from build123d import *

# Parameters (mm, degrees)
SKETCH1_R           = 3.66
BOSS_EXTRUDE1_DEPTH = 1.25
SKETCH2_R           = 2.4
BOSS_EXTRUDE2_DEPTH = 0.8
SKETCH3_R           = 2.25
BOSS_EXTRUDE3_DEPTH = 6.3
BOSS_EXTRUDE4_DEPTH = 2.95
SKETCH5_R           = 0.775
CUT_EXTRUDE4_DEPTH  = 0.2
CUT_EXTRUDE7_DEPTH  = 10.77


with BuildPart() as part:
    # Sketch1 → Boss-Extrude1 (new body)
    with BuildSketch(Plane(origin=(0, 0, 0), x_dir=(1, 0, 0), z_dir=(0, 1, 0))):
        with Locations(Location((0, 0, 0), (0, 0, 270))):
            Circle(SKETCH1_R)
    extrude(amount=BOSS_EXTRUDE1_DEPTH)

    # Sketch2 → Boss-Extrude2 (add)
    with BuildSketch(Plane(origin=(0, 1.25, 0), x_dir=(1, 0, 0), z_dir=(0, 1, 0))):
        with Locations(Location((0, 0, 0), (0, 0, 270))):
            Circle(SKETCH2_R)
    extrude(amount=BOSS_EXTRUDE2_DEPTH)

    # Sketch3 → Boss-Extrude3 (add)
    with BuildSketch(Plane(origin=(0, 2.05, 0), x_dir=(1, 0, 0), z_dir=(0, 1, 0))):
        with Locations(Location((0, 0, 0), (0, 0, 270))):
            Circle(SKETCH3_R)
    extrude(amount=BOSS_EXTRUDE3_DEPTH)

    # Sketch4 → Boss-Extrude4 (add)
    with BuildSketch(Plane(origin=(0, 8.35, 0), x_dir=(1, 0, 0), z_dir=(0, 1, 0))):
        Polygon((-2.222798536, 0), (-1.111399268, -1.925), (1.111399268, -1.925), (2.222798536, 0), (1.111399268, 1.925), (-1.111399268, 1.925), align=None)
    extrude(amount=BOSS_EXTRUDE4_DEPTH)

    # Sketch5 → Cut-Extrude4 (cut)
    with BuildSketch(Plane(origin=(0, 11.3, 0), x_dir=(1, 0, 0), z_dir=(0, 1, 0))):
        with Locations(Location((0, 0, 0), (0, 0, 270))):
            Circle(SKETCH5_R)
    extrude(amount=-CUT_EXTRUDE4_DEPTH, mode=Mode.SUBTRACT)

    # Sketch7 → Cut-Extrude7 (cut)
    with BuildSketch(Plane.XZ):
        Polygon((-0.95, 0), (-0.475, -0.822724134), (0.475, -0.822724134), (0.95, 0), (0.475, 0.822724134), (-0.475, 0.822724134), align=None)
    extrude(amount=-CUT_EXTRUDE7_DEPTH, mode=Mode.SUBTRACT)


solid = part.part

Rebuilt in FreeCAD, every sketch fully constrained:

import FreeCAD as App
import Part
import Sketcher
Q = App.Units.Quantity

doc = App.newDocument("Part")
body = doc.addObject("PartDesign::Body", "Body")

# Sketch on XZ plane
sketch1 = body.newObject("Sketcher::SketchObject", "Sketch")
sketch1.AttachmentSupport = (doc.getObject("XZ_Plane"), [""])
sketch1.MapMode = "FlatFace"
sketch1.addGeometry(Part.Circle(App.Vector(0, 0, 0), App.Vector(0, 0, 1), 3.7), False)
sketch1.addConstraint(Sketcher.Constraint("Coincident", 0, 3, -1, 1))
sketch1.addConstraint(Sketcher.Constraint("Diameter", 0, Q("7.32 mm")))
pad1 = body.newObject("PartDesign::Pad", "Pad")
pad1.Profile = sketch1
pad1.Length = 1.25
pad1.Reversed = True

# Sketch on XZ plane
sketch2 = body.newObject("Sketcher::SketchObject", "Sketch001")
sketch2.AttachmentSupport = (doc.getObject("XZ_Plane"), [""])
sketch2.MapMode = "FlatFace"
sketch2.AttachmentOffset = App.Placement(App.Vector(0, 0, -1.25), App.Rotation())
sketch2.addGeometry(Part.Circle(App.Vector(0, 0, 0), App.Vector(0, 0, 1), 2.4), False)
sketch2.addConstraint(Sketcher.Constraint("Coincident", 0, 3, -1, 1))
sketch2.addConstraint(Sketcher.Constraint("Diameter", 0, Q("4.8 mm")))
pad2 = body.newObject("PartDesign::Pad", "Pad001")
pad2.Profile = sketch2
pad2.Length = 0.8
pad2.Reversed = True

# Sketch on XZ plane
sketch3 = body.newObject("Sketcher::SketchObject", "Sketch002")
sketch3.AttachmentSupport = (doc.getObject("XZ_Plane"), [""])
sketch3.MapMode = "FlatFace"
sketch3.AttachmentOffset = App.Placement(App.Vector(0, 0, -2.05), App.Rotation())
sketch3.addGeometry(Part.Circle(App.Vector(0, 0, 0), App.Vector(0, 0, 1), 2.2), False)
sketch3.addConstraint(Sketcher.Constraint("Coincident", 0, 3, -1, 1))
sketch3.addConstraint(Sketcher.Constraint("Diameter", 0, Q("4.5 mm")))
pad3 = body.newObject("PartDesign::Pad", "Pad002")
pad3.Profile = sketch3
pad3.Length = 6.3
pad3.Reversed = True

# Sketch on XZ plane
sketch4 = body.newObject("Sketcher::SketchObject", "Sketch003")
sketch4.AttachmentSupport = (doc.getObject("XZ_Plane"), [""])
sketch4.MapMode = "FlatFace"
sketch4.AttachmentOffset = App.Placement(App.Vector(0, 0, -8.35), App.Rotation())
sketch4.addGeometry(Part.LineSegment(App.Vector(-2.2, 0, 0), App.Vector(-1.1, 1.9, 0)), False)
sketch4.addGeometry(Part.LineSegment(App.Vector(-1.1, 1.9, 0), App.Vector(1.1, 1.9, 0)), False)
sketch4.addGeometry(Part.LineSegment(App.Vector(1.1, 1.9, 0), App.Vector(2.2, 0, 0)), False)
sketch4.addGeometry(Part.LineSegment(App.Vector(2.2, 0, 0), App.Vector(1.1, -1.9, 0)), False)
sketch4.addGeometry(Part.LineSegment(App.Vector(1.1, -1.9, 0), App.Vector(-1.1, -1.9, 0)), False)
sketch4.addGeometry(Part.LineSegment(App.Vector(-1.1, -1.9, 0), App.Vector(-2.2, 0, 0)), False)
sketch4.addConstraint(Sketcher.Constraint("Coincident", 0, 2, 1, 1))
sketch4.addConstraint(Sketcher.Constraint("Coincident", 1, 2, 2, 1))
sketch4.addConstraint(Sketcher.Constraint("Coincident", 2, 2, 3, 1))
sketch4.addConstraint(Sketcher.Constraint("Coincident", 3, 2, 4, 1))
sketch4.addConstraint(Sketcher.Constraint("Coincident", 4, 2, 5, 1))
sketch4.addConstraint(Sketcher.Constraint("Coincident", 5, 2, 0, 1))
sketch4.addConstraint(Sketcher.Constraint("Horizontal", 1))
sketch4.addConstraint(Sketcher.Constraint("Horizontal", 4))
sketch4.addConstraint(Sketcher.Constraint("Symmetric", 0, 2, 3, 2, -1, 1))
sketch4.addConstraint(Sketcher.Constraint("Symmetric", 2, 2, 5, 2, -1, 1))
sketch4.addConstraint(Sketcher.Constraint("PointOnObject", 2, 2, -1))
sketch4.addConstraint(Sketcher.Constraint("Parallel", 2, 5))
sketch4.addConstraint(Sketcher.Constraint("Vertical", 1, 2, 3, 2))
sketch4.addConstraint(Sketcher.Constraint("Angle", 0, Q("60 deg")))
sketch4.addConstraint(Sketcher.Constraint("DistanceY", 3, 2, 1, 2, Q("3.85 mm")))
sketch4.addConstraint(Sketcher.Constraint("DistanceX", 1, 1, 1, 2, Q("2.222799 mm")))
pad4 = body.newObject("PartDesign::Pad", "Pad003")
pad4.Profile = sketch4
pad4.Length = 2.95
pad4.Reversed = True

# Sketch on XZ plane
sketch5 = body.newObject("Sketcher::SketchObject", "Sketch004")
sketch5.AttachmentSupport = (doc.getObject("XZ_Plane"), [""])
sketch5.MapMode = "FlatFace"
sketch5.AttachmentOffset = App.Placement(App.Vector(0, 0, -11.3), App.Rotation())
sketch5.addGeometry(Part.Circle(App.Vector(0, 0, 0), App.Vector(0, 0, 1), 0.8), False)
sketch5.addConstraint(Sketcher.Constraint("Coincident", 0, 3, -1, 1))
sketch5.addConstraint(Sketcher.Constraint("Diameter", 0, Q("1.55 mm")))
pocket1 = body.newObject("PartDesign::Pocket", "Pocket")
pocket1.Profile = sketch5
pocket1.Length = 0.2
pocket1.Reversed = True

# Sketch on XZ plane
sketch6 = body.newObject("Sketcher::SketchObject", "Sketch005")
sketch6.AttachmentSupport = (doc.getObject("XZ_Plane"), [""])
sketch6.MapMode = "FlatFace"
sketch6.addGeometry(Part.LineSegment(App.Vector(-0.9, 0, 0), App.Vector(-0.5, -0.8, 0)), False)
sketch6.addGeometry(Part.LineSegment(App.Vector(-0.5, -0.8, 0), App.Vector(0.5, -0.8, 0)), False)
sketch6.addGeometry(Part.LineSegment(App.Vector(0.5, -0.8, 0), App.Vector(0.9, 0, 0)), False)
sketch6.addGeometry(Part.LineSegment(App.Vector(0.9, 0, 0), App.Vector(0.5, 0.8, 0)), False)
sketch6.addGeometry(Part.LineSegment(App.Vector(0.5, 0.8, 0), App.Vector(-0.5, 0.8, 0)), False)
sketch6.addGeometry(Part.LineSegment(App.Vector(-0.5, 0.8, 0), App.Vector(-0.9, 0, 0)), False)
sketch6.addConstraint(Sketcher.Constraint("Coincident", 0, 2, 1, 1))
sketch6.addConstraint(Sketcher.Constraint("Coincident", 1, 2, 2, 1))
sketch6.addConstraint(Sketcher.Constraint("Coincident", 2, 2, 3, 1))
sketch6.addConstraint(Sketcher.Constraint("Coincident", 3, 2, 4, 1))
sketch6.addConstraint(Sketcher.Constraint("Coincident", 4, 2, 5, 1))
sketch6.addConstraint(Sketcher.Constraint("Coincident", 5, 2, 0, 1))
sketch6.addConstraint(Sketcher.Constraint("Horizontal", 1))
sketch6.addConstraint(Sketcher.Constraint("Horizontal", 4))
sketch6.addConstraint(Sketcher.Constraint("Symmetric", 0, 2, 3, 2, -1, 1))
sketch6.addConstraint(Sketcher.Constraint("Symmetric", 2, 2, 5, 2, -1, 1))
sketch6.addConstraint(Sketcher.Constraint("PointOnObject", 2, 2, -1))
sketch6.addConstraint(Sketcher.Constraint("Parallel", 2, 5))
sketch6.addConstraint(Sketcher.Constraint("Vertical", 1, 2, 3, 2))
sketch6.addConstraint(Sketcher.Constraint("Angle", 0, Q("-60 deg")))
sketch6.addConstraint(Sketcher.Constraint("DistanceX", 1, 1, 1, 2, Q("0.95 mm")))
sketch6.addConstraint(Sketcher.Constraint("DistanceX", 5, 2, 2, 2, Q("1.9 mm")))
pocket2 = body.newObject("PartDesign::Pocket", "Pocket001")
pocket2.Profile = sketch6
pocket2.Length = 10.77

doc.recompute()
